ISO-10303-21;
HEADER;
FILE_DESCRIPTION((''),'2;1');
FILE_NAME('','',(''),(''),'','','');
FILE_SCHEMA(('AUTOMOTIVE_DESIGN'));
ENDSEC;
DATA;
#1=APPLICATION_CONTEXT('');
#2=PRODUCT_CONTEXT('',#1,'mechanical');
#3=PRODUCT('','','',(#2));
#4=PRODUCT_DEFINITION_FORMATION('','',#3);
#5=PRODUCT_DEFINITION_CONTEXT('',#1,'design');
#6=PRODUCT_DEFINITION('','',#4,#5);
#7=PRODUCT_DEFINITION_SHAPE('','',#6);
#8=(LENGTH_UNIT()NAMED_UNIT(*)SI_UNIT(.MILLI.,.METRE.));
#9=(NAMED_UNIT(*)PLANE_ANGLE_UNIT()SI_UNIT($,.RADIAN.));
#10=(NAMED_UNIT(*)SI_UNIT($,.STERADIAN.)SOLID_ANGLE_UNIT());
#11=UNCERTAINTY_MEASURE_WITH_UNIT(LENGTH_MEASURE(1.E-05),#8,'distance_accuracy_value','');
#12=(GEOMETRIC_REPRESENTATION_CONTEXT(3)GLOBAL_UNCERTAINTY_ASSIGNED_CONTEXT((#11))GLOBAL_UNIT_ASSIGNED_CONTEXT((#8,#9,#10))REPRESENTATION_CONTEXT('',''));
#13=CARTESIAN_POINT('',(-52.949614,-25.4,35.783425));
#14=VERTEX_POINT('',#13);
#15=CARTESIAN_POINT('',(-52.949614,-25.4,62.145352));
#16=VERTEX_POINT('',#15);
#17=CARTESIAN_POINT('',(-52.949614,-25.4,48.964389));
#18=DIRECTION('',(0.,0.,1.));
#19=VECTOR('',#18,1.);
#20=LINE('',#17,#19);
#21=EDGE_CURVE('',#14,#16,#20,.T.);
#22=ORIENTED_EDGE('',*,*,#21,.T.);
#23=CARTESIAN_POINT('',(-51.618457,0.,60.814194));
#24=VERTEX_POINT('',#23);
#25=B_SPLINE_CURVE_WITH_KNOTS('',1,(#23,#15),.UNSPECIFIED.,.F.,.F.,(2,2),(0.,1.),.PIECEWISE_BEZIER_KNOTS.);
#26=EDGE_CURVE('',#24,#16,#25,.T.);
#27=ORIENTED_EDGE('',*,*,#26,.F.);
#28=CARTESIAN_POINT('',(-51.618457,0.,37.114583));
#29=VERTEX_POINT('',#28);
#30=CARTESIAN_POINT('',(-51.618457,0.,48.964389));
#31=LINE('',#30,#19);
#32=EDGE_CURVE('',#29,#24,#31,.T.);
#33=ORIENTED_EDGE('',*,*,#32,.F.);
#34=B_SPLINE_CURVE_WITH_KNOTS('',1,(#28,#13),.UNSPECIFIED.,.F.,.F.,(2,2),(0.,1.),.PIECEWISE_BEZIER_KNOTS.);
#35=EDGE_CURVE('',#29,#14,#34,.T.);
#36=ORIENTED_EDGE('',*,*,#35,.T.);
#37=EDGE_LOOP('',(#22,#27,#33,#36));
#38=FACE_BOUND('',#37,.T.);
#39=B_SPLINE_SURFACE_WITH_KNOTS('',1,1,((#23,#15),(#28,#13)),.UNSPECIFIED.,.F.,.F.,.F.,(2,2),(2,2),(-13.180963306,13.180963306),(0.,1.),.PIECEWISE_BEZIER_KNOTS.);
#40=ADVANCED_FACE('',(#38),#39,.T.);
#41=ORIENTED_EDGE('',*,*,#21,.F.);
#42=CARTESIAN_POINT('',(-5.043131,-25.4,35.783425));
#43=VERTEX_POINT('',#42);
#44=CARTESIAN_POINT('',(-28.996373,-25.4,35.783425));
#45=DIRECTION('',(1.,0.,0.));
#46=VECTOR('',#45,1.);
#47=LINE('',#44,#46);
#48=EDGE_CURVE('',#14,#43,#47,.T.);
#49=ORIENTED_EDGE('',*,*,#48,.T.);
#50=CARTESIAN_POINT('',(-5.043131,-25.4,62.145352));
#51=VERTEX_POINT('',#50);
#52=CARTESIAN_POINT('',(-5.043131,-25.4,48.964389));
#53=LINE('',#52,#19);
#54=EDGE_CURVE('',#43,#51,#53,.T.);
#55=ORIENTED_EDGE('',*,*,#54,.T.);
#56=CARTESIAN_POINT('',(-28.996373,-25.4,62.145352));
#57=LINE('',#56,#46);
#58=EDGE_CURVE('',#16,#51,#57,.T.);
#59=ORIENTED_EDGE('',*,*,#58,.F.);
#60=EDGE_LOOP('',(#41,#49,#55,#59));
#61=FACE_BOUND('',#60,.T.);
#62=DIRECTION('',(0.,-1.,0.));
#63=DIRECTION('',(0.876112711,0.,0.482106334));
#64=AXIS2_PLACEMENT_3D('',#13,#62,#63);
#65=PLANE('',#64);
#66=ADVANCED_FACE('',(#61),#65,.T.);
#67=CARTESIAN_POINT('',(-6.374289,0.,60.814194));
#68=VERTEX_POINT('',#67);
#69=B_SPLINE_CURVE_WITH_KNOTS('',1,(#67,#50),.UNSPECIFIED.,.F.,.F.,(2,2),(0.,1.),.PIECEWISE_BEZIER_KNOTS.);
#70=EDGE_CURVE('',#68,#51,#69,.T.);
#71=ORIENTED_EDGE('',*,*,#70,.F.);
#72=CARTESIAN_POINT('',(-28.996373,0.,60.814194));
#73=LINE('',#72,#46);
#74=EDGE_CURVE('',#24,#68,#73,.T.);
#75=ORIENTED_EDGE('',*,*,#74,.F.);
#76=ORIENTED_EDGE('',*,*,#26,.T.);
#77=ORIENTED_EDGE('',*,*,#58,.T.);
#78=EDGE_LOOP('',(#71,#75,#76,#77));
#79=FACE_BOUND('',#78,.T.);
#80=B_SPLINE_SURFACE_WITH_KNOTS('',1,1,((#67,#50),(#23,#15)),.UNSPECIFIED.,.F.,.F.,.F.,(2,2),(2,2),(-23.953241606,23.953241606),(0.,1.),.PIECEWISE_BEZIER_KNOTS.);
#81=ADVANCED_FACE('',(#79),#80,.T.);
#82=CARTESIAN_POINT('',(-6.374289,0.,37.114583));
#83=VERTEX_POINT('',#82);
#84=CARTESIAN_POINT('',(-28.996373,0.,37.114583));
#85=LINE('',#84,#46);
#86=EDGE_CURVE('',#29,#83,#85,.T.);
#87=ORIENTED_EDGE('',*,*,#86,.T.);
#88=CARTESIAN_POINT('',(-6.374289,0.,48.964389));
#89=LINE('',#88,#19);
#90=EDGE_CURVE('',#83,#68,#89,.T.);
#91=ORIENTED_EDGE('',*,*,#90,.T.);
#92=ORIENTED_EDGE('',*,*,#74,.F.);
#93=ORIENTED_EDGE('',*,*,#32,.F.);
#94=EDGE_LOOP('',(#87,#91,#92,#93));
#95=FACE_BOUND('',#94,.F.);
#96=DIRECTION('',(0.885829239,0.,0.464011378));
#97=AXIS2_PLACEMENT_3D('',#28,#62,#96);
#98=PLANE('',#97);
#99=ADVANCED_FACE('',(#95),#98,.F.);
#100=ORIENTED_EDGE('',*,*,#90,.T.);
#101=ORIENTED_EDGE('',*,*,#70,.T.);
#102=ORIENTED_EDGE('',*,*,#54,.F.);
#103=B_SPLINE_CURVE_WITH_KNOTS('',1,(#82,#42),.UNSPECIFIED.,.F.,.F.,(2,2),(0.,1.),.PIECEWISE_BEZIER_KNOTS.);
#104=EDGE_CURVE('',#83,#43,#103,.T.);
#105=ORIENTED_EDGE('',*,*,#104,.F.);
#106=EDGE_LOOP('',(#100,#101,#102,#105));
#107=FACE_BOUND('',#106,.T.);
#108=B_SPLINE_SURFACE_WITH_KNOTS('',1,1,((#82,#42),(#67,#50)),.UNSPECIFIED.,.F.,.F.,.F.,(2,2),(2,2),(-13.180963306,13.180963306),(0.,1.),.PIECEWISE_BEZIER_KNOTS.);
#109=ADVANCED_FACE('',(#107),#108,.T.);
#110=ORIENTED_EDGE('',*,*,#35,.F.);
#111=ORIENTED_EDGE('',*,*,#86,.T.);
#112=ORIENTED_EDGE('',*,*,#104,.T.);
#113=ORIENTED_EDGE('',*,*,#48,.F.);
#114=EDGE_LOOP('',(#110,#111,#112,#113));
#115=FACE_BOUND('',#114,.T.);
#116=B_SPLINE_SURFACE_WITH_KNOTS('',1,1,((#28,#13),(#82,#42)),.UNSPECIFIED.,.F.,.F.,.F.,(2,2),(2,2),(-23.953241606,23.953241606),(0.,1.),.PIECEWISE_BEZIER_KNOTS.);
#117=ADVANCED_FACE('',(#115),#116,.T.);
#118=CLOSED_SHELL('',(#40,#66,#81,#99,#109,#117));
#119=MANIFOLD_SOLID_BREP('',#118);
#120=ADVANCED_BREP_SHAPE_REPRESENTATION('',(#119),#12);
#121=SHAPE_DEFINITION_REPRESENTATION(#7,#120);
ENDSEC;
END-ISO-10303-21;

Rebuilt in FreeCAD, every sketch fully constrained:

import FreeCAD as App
import Part
import Sketcher

V = App.Vector
Q = App.Units.Quantity


def add_polygon(sketch, points):
    """Adds a closed chain of lines whose ends are joined by coincident constraints."""
    first, n = sketch.GeometryCount, len(points)
    for a, b in zip(points, points[1:] + points[:1]):
        sketch.addGeometry(Part.LineSegment(App.Vector(*a, 0), App.Vector(*b, 0)), False)
    for i in range(n):
        sketch.addConstraint(Sketcher.Constraint("Coincident", first + i, 2, first + (i + 1) % n, 1))

doc = App.newDocument("Part")
body = doc.addObject("PartDesign::Body", "Body")

# Sketch on XZ plane
sketch1 = body.newObject("Sketcher::SketchObject", "Sketch")
sketch1.AttachmentSupport = (doc.getObject("XZ_Plane"), [""])
sketch1.MapMode = "FlatFace"
add_polygon(sketch1, [(-51.618457, 60.814194), (-51.618457, 37.114583), (-6.374289, 37.114583), (-6.374289, 60.814194)])  # lines 0-3
sketch1.addConstraint(Sketcher.Constraint("Vertical", 0))
sketch1.addConstraint(Sketcher.Constraint("Horizontal", 1))
sketch1.addConstraint(Sketcher.Constraint("Vertical", 2))
sketch1.addConstraint(Sketcher.Constraint("Horizontal", 3))
sketch1.addConstraint(Sketcher.Constraint("DistanceX", 1, 1, 1, 2, Q("45.244168 mm")))
sketch1.addConstraint(Sketcher.Constraint("DistanceY", 0, 2, 0, 1, Q("23.699611 mm")))
sketch1.addConstraint(Sketcher.Constraint("DistanceX", 1, 2, -1, 1, Q("6.374289 mm")))
sketch1.addConstraint(Sketcher.Constraint("DistanceY", -1, 1, 0, 2, Q("37.114583 mm")))
pad1 = body.newObject("PartDesign::Pad", "Pad")
pad1.Profile = sketch1
pad1.Length = Q("1 in")
pad1.TaperAngle = 3

doc.recompute()
